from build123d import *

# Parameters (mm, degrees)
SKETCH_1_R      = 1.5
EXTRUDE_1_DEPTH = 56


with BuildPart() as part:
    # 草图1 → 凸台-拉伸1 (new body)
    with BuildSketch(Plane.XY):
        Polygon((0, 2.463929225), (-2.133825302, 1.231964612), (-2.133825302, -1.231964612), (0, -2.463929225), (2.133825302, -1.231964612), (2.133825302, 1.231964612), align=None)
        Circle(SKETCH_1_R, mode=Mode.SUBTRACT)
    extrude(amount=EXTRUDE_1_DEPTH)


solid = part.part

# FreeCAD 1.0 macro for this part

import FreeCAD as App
import Part
import Sketcher

V = App.Vector
Q = App.Units.Quantity

doc = App.newDocument("Part")
params = doc.addObject("Spreadsheet::Sheet", "Params")
for row, (alias, value) in enumerate([
    ("sketch1_diameter", "3 mm"),
    ("pad1_length", "56 mm"),
], start=1):
    params.set(f"A{row}", alias)
    params.set(f"B{row}", "=" + value)
    params.setAlias(f"B{row}", alias)

body = doc.addObject("PartDesign::Body", "Body")

# Sketch on XY plane
sketch1 = doc.addObject("Sketcher::SketchObject", "Sketch")
body.addObject(sketch1)
sketch1.AttachmentSupport = (doc.XY_Plane, [""])
sketch1.MapMode = "FlatFace"
sketch1.addGeometry(Part.LineSegment(V(0, 2.5, 0), V(-2.1, 1.2, 0)), False)
sketch1.addGeometry(Part.LineSegment(V(-2.1, 1.2, 0), V(-2.1, -1.2, 0)), False)
sketch1.addGeometry(Part.LineSegment(V(-2.1, -1.2, 0), V(0, -2.5, 0)), False)
sketch1.addGeometry(Part.LineSegment(V(0, -2.5, 0), V(2.1, -1.2, 0)), False)
sketch1.addGeometry(Part.LineSegment(V(2.1, -1.2, 0), V(2.1, 1.2, 0)), False)
sketch1.addGeometry(Part.LineSegment(V(2.1, 1.2, 0), V(0, 2.5, 0)), False)
sketch1.addGeometry(Part.Circle(V(0, 0, 0), V(0, 0, 1), 1.5), False)
sketch1.addConstraint(Sketcher.Constraint("Coincident", 0, 2, 1, 1))
sketch1.addConstraint(Sketcher.Constraint("Coincident", 1, 2, 2, 1))
sketch1.addConstraint(Sketcher.Constraint("Coincident", 2, 2, 3, 1))
sketch1.addConstraint(Sketcher.Constraint("Coincident", 3, 2, 4, 1))
sketch1.addConstraint(Sketcher.Constraint("Coincident", 4, 2, 5, 1))
sketch1.addConstraint(Sketcher.Constraint("Coincident", 5, 2, 0, 1))
sketch1.addConstraint(Sketcher.Constraint("Vertical", 1))
sketch1.addConstraint(Sketcher.Constraint("Vertical", 4))
sketch1.addConstraint(Sketcher.Constraint("Coincident", 6, 3, -1, 1))
sketch1.addConstraint(Sketcher.Constraint("Symmetric", 0, 2, 3, 2, -1, 1))
sketch1.addConstraint(Sketcher.Constraint("Symmetric", 2, 2, 5, 2, -1, 1))
sketch1.addConstraint(Sketcher.Constraint("PointOnObject", 2, 2, -2))
sketch1.addConstraint(Sketcher.Constraint("Parallel", 2, 5))
sketch1.addConstraint(Sketcher.Constraint("Horizontal", 1, 2, 3, 2))
sketch1.addConstraint(Sketcher.Constraint("Diameter", 6, 3.0))
sketch1.addConstraint(Sketcher.Constraint("Angle", 0, Q("-150 deg")))
sketch1.addConstraint(Sketcher.Constraint("DistanceY", 1, 2, 1, 1, 2.463929))
sketch1.addConstraint(Sketcher.Constraint("Distance", 0, 2.463929))
sketch1.setExpression("Constraints[14]", "Params.sketch1_diameter")
pad1 = doc.addObject("PartDesign::Pad", "Pad")
body.addObject(pad1)
pad1.Profile = sketch1
pad1.setExpression("Length", "Params.pad1_length")

doc.recompute()
